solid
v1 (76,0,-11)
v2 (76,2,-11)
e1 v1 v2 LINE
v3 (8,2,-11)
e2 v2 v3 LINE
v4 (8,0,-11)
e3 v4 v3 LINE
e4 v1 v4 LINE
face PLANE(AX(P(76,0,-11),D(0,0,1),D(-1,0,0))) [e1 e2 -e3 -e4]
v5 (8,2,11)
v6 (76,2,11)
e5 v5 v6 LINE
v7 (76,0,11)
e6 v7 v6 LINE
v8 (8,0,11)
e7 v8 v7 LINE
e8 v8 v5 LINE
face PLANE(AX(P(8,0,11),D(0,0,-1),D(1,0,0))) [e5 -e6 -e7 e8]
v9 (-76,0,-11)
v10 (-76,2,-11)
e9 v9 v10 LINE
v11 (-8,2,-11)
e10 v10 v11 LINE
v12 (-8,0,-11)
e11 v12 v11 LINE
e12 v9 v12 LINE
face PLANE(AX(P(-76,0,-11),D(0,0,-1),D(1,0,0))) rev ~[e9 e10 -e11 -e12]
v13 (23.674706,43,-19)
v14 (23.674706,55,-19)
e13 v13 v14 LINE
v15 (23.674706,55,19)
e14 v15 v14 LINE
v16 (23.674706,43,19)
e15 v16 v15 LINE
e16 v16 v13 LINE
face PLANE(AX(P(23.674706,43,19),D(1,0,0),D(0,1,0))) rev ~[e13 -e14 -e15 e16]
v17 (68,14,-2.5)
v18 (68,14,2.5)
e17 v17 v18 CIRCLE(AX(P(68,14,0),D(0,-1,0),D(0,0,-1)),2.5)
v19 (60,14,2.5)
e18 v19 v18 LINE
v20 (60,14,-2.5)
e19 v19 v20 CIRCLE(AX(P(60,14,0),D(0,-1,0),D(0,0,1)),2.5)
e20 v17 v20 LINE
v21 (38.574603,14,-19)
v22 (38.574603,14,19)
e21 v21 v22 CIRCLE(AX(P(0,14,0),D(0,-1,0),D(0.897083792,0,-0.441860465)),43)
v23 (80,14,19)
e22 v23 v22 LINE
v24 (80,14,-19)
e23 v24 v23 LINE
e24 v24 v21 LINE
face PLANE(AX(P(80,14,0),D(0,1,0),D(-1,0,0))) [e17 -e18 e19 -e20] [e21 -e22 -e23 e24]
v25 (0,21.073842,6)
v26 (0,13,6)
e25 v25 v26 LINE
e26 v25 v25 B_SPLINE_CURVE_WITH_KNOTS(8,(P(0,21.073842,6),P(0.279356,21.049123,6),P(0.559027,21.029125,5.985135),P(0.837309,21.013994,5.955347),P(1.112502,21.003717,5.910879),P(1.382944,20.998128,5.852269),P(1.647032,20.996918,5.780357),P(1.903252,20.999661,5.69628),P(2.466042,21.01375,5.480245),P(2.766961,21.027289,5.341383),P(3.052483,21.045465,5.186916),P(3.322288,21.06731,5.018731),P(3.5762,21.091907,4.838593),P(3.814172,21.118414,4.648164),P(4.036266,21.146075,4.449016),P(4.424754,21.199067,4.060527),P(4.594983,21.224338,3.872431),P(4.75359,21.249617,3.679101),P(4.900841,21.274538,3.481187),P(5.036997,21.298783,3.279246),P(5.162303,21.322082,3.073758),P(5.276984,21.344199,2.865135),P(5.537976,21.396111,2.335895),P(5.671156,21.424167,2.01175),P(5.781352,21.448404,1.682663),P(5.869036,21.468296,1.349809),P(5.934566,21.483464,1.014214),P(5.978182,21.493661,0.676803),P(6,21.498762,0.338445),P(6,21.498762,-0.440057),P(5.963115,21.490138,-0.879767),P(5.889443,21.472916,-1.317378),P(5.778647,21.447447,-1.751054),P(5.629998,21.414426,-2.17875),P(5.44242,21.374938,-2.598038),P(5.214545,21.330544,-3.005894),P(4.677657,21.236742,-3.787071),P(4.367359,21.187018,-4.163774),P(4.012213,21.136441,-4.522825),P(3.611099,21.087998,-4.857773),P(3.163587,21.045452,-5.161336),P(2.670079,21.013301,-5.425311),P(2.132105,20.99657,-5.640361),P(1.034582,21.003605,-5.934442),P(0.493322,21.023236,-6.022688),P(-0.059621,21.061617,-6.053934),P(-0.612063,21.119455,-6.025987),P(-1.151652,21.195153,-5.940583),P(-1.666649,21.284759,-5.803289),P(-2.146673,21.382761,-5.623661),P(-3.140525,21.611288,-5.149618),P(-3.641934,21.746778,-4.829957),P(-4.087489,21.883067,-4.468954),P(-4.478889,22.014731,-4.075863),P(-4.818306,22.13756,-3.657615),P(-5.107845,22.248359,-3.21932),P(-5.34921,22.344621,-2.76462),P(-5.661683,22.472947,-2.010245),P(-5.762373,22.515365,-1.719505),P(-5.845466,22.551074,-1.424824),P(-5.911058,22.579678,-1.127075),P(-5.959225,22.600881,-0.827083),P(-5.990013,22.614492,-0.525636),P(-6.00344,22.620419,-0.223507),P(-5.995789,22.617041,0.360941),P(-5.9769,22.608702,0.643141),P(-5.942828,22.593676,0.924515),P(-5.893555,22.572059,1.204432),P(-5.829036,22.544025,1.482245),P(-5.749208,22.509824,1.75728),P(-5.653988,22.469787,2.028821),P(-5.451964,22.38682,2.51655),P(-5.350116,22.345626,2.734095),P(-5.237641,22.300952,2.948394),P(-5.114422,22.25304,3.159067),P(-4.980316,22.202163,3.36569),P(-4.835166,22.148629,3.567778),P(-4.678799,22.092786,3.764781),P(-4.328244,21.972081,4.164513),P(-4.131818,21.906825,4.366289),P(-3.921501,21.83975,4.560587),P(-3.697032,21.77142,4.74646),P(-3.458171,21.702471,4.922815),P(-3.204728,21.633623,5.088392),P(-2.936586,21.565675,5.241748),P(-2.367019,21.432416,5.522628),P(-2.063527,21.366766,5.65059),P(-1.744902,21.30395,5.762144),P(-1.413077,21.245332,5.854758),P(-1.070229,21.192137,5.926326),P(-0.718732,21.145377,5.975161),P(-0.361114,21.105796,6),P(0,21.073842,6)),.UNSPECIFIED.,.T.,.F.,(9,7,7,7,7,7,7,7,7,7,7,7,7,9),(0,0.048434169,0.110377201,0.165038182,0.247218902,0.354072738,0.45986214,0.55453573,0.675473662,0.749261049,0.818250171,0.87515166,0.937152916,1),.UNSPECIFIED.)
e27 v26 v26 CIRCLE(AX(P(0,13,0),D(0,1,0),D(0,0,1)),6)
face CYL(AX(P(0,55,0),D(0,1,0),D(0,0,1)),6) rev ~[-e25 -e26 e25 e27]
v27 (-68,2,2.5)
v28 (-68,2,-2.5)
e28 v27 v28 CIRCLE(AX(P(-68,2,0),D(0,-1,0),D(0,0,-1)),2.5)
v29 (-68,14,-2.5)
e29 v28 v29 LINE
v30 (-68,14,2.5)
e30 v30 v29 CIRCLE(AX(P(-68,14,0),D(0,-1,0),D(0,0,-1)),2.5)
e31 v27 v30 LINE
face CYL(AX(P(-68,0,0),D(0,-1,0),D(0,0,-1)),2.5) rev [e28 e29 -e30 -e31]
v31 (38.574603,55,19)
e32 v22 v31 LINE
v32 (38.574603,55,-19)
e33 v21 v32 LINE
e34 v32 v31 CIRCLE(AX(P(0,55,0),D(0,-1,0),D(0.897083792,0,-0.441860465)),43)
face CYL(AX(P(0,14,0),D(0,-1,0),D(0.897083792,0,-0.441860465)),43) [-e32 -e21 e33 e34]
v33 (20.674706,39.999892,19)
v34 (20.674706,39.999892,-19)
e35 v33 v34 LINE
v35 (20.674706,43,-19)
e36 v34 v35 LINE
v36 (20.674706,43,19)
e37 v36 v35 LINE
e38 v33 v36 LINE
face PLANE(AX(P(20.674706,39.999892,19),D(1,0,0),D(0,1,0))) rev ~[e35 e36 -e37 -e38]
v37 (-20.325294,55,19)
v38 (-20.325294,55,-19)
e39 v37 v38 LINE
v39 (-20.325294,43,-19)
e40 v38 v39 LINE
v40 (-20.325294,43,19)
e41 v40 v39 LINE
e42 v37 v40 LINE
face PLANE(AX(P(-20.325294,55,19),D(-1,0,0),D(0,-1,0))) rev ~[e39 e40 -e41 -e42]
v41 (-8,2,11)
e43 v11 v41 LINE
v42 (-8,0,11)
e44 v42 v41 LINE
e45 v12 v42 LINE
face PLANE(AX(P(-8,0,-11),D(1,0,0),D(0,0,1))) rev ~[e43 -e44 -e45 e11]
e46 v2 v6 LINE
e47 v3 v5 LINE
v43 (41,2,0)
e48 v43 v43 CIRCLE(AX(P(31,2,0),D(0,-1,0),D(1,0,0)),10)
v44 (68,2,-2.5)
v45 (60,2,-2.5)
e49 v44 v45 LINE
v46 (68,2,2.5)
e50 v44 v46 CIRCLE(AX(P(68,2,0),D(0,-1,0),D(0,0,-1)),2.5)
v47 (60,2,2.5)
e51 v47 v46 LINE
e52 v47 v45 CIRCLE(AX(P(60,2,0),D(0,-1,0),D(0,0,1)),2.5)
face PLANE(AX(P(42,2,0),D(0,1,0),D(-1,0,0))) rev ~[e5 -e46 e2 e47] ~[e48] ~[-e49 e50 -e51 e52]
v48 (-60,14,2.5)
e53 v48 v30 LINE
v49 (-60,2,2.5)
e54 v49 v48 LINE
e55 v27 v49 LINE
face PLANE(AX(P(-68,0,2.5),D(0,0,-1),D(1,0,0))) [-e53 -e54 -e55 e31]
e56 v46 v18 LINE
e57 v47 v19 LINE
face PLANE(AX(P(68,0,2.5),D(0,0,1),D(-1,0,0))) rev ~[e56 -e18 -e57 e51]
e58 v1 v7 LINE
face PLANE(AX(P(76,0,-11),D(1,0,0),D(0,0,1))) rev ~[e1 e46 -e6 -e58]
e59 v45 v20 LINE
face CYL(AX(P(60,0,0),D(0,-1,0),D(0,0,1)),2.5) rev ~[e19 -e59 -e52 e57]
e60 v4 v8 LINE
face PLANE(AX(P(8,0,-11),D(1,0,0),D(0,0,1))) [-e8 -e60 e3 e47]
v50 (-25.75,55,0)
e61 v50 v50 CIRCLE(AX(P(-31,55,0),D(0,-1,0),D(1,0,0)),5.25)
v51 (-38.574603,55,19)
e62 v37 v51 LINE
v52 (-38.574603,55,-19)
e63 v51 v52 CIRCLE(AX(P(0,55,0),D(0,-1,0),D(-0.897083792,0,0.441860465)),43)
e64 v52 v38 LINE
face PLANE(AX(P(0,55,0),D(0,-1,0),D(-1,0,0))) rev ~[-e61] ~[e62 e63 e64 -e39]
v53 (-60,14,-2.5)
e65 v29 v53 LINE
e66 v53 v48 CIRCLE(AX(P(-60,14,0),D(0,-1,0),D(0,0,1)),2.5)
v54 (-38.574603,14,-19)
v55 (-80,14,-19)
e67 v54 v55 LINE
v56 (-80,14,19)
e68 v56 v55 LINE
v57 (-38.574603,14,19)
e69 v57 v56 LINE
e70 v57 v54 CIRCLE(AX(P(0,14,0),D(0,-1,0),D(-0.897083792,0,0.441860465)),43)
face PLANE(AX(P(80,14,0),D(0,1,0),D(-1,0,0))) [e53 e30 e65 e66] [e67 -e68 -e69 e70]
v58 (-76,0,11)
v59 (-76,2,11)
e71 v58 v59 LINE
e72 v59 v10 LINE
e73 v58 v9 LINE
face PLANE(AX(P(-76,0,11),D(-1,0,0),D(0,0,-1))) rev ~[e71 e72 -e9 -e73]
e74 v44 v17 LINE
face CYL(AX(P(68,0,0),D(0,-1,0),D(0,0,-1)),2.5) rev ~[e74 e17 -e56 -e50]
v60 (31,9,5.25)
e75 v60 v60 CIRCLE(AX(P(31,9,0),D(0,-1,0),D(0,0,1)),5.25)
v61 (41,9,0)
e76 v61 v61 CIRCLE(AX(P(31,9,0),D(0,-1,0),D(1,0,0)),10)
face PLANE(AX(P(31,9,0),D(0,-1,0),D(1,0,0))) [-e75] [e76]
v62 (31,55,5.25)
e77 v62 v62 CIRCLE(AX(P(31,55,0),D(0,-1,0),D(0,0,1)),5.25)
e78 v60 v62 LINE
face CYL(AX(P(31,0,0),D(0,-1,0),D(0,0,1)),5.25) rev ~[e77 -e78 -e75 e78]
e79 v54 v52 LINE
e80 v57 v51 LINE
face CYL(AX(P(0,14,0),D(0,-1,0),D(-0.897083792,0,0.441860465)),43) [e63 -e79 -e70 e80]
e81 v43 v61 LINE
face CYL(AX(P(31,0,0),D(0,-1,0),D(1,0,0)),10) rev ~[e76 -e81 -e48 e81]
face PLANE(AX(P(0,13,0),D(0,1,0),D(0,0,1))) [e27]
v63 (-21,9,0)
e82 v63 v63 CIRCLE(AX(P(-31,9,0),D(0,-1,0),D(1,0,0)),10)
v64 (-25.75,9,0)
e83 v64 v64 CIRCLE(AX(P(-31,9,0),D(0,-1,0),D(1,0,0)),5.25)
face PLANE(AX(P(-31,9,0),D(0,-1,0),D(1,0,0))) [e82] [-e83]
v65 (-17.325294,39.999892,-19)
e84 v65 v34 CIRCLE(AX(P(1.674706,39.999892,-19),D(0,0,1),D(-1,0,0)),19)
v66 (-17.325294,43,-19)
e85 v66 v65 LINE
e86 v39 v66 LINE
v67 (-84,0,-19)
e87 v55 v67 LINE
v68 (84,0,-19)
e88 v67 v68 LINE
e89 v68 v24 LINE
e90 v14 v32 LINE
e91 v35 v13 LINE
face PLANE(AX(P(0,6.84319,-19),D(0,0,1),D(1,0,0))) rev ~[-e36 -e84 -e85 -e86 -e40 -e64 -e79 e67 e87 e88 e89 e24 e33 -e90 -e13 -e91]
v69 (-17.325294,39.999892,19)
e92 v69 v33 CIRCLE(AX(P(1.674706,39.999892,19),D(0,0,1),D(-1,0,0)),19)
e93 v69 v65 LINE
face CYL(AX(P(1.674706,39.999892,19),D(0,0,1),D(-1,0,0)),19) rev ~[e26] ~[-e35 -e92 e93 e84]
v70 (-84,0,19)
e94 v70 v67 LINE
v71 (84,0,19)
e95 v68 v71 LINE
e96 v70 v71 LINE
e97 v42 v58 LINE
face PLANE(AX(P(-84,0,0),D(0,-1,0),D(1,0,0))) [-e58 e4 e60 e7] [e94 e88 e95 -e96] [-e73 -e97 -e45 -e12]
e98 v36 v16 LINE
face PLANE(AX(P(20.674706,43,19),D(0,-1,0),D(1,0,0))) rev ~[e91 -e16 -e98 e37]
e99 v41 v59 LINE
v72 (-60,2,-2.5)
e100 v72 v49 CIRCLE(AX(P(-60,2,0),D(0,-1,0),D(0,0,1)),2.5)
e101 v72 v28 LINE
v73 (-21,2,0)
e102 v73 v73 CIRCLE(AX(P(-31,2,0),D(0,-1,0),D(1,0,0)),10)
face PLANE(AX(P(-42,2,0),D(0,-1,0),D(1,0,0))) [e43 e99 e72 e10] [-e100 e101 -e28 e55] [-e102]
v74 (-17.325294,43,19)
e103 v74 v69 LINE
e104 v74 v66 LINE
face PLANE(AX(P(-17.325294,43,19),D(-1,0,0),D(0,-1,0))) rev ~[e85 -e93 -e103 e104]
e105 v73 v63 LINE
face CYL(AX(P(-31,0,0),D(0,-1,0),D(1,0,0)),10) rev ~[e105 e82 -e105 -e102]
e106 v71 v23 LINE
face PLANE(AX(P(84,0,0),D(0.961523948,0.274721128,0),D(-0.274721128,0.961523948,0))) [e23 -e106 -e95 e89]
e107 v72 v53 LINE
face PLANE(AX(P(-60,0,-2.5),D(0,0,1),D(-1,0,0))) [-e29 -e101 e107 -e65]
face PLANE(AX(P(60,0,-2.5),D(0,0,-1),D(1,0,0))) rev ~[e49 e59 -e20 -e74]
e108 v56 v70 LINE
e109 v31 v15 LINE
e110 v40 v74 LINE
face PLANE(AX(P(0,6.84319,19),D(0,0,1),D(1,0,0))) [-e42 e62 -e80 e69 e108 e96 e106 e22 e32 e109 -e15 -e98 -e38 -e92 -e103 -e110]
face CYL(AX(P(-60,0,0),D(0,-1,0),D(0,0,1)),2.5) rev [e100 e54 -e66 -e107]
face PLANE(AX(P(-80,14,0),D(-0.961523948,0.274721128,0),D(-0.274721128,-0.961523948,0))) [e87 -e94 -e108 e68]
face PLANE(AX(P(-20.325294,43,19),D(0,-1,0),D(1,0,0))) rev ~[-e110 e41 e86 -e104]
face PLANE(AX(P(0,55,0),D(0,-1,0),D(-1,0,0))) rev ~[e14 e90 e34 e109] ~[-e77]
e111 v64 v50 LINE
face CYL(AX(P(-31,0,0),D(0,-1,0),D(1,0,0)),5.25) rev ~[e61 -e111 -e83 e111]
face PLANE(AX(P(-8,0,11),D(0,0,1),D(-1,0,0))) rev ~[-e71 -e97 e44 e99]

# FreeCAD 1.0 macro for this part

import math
import FreeCAD as App
import Part
import Sketcher
from FreeCAD import Vector
Q = App.Units.Quantity

doc = App.newDocument("Part")
body = doc.addObject("PartDesign::Body", "Body")

sketch1 = doc.addObject("Sketcher::SketchObject", "Sketch")
body.addObject(sketch1)
sketch1.AttachmentSupport = (doc.XY_Plane, [""])
sketch1.MapMode = "FlatFace"
sketch1.addGeometry(Part.LineSegment(Vector(-84, 0, 0), Vector(84, 0, 0)), False)
sketch1.addGeometry(Part.LineSegment(Vector(84, 0, 0), Vector(80, 14, 0)), False)
sketch1.addGeometry(Part.LineSegment(Vector(80, 14, 0), Vector(-80, 14, 0)), False)
sketch1.addGeometry(Part.LineSegment(Vector(-80, 14, 0), Vector(-84, 0, 0)), False)
sketch1.addConstraint(Sketcher.Constraint("Coincident", 0, 2, 1, 1))
sketch1.addConstraint(Sketcher.Constraint("Coincident", 1, 2, 2, 1))
sketch1.addConstraint(Sketcher.Constraint("Coincident", 2, 2, 3, 1))
sketch1.addConstraint(Sketcher.Constraint("Coincident", 3, 2, 0, 1))
sketch1.addConstraint(Sketcher.Constraint("Horizontal", 0))
sketch1.addConstraint(Sketcher.Constraint("Horizontal", 2))
sketch1.addConstraint(Sketcher.Constraint("Symmetric", 0, 2, 3, 2, -1, 1))
sketch1.addConstraint(Sketcher.Constraint("Equal", 1, 3))
sketch1.addConstraint(Sketcher.Constraint("DistanceX", 0, 1, 0, 2, Q("168 mm")))
sketch1.addConstraint(Sketcher.Constraint("DistanceX", 2, 2, 2, 1, Q("160 mm")))
sketch1.addConstraint(Sketcher.Constraint("DistanceY", -1, 1, 1, 2, Q("14 mm")))
pad1 = doc.addObject("PartDesign::Pad", "Pad")
body.addObject(pad1)
pad1.Profile = sketch1
pad1.Length = 38
pad1.Midplane = True

sketch2 = doc.addObject("Sketcher::SketchObject", "Sketch001")
body.addObject(sketch2)
sketch2.AttachmentSupport = (doc.XZ_Plane, [""])
sketch2.MapMode = "FlatFace"
sketch2.addGeometry(Part.LineSegment(Vector(-76, 11, 0), Vector(-76, -11, 0)), False)
sketch2.addGeometry(Part.LineSegment(Vector(-76, -11, 0), Vector(-8, -11, 0)), False)
sketch2.addGeometry(Part.LineSegment(Vector(-8, -11, 0), Vector(-8, 11, 0)), False)
sketch2.addGeometry(Part.LineSegment(Vector(-8, 11, 0), Vector(-76, 11, 0)), False)
sketch2.addGeometry(Part.LineSegment(Vector(76, -11, 0), Vector(76, 11, 0)), False)
sketch2.addGeometry(Part.LineSegment(Vector(76, 11, 0), Vector(8, 11, 0)), False)
sketch2.addGeometry(Part.LineSegment(Vector(8, 11, 0), Vector(8, -11, 0)), False)
sketch2.addGeometry(Part.LineSegment(Vector(8, -11, 0), Vector(76, -11, 0)), False)
sketch2.addConstraint(Sketcher.Constraint("Coincident", 0, 2, 1, 1))
sketch2.addConstraint(Sketcher.Constraint("Coincident", 1, 2, 2, 1))
sketch2.addConstraint(Sketcher.Constraint("Coincident", 2, 2, 3, 1))
sketch2.addConstraint(Sketcher.Constraint("Coincident", 3, 2, 0, 1))
sketch2.addConstraint(Sketcher.Constraint("Coincident", 4, 2, 5, 1))
sketch2.addConstraint(Sketcher.Constraint("Coincident", 5, 2, 6, 1))
sketch2.addConstraint(Sketcher.Constraint("Coincident", 6, 2, 7, 1))
sketch2.addConstraint(Sketcher.Constraint("Coincident", 7, 2, 4, 1))
sketch2.addConstraint(Sketcher.Constraint("Vertical", 0))
sketch2.addConstraint(Sketcher.Constraint("Horizontal", 1))
sketch2.addConstraint(Sketcher.Constraint("Vertical", 2))
sketch2.addConstraint(Sketcher.Constraint("Horizontal", 3))
sketch2.addConstraint(Sketcher.Constraint("Vertical", 4))
sketch2.addConstraint(Sketcher.Constraint("Horizontal", 5))
sketch2.addConstraint(Sketcher.Constraint("Vertical", 6))
sketch2.addConstraint(Sketcher.Constraint("Horizontal", 7))
sketch2.addConstraint(Sketcher.Constraint("Symmetric", 0, 2, 4, 2, -1, 1))
sketch2.addConstraint(Sketcher.Constraint("Symmetric", 2, 2, 6, 2, -1, 1))
sketch2.addConstraint(Sketcher.Constraint("Horizontal", 3, 2, 4, 2))
sketch2.addConstraint(Sketcher.Constraint("DistanceX", 1, 1, 1, 2, Q("68 mm")))
sketch2.addConstraint(Sketcher.Constraint("DistanceY", 0, 2, 0, 1, Q("22 mm")))
sketch2.addConstraint(Sketcher.Constraint("DistanceX", 0, 2, -1, 1, Q("76 mm")))
pocket1 = doc.addObject("PartDesign::Pocket", "Pocket")
body.addObject(pocket1)
pocket1.Profile = sketch2
pocket1.Length = 2

sketch3 = doc.addObject("Sketcher::SketchObject", "Sketch002")
body.addObject(sketch3)
sketch3.AttachmentSupport = (doc.XZ_Plane, [""])
sketch3.MapMode = "FlatFace"
sketch3.AttachmentOffset = App.Placement(Vector(0, 0, -14), App.Rotation())
sketch3.addGeometry(Part.LineSegment(Vector(39, -19, 0), Vector(-39, -19, 0)), False)
sketch3.addGeometry(Part.ArcOfCircle(Part.Circle(Vector(0, 0, 0), Vector(0, 0, 1), 43), math.radians(154), math.radians(206)), False)
sketch3.addGeometry(Part.LineSegment(Vector(-39, 19, 0), Vector(39, 19, 0)), False)
sketch3.addGeometry(Part.ArcOfCircle(Part.Circle(Vector(0, 0, 0), Vector(0, 0, 1), 43), math.radians(-26), math.radians(26)), False)
sketch3.addConstraint(Sketcher.Constraint("Coincident", 0, 2, 1, 2))
sketch3.addConstraint(Sketcher.Constraint("Coincident", 1, 1, 2, 1))
sketch3.addConstraint(Sketcher.Constraint("Coincident", 2, 2, 3, 2))
sketch3.addConstraint(Sketcher.Constraint("Coincident", 3, 1, 0, 1))
sketch3.addConstraint(Sketcher.Constraint("Horizontal", 0))
sketch3.addConstraint(Sketcher.Constraint("Horizontal", 2))
sketch3.addConstraint(Sketcher.Constraint("Coincident", 1, 3, -1, 1))
sketch3.addConstraint(Sketcher.Constraint("Coincident", 3, 3, -1, 1))
sketch3.addConstraint(Sketcher.Constraint("Equal", 1, 3))
sketch3.addConstraint(Sketcher.Constraint("Vertical", 0, 2, 1, 1))
sketch3.addConstraint(Sketcher.Constraint("Radius", 1, Q("43 mm")))
sketch3.addConstraint(Sketcher.Constraint("DistanceY", 0, 2, -1, 1, Q("19 mm")))
pad2 = doc.addObject("PartDesign::Pad", "Pad001")
body.addObject(pad2)
pad2.Profile = sketch3
pad2.Length = 41
pad2.Reversed = True

sketch4 = doc.addObject("Sketcher::SketchObject", "Sketch003")
body.addObject(sketch4)
sketch4.AttachmentSupport = (doc.XY_Plane, [""])
sketch4.MapMode = "FlatFace"
sketch4.AttachmentOffset = App.Placement(Vector(0, 0, 19), App.Rotation())
sketch4.addGeometry(Part.LineSegment(Vector(20.7, 40, 0), Vector(20.7, 43, 0)), False)
sketch4.addGeometry(Part.LineSegment(Vector(20.7, 43, 0), Vector(23.7, 43, 0)), False)
sketch4.addGeometry(Part.LineSegment(Vector(23.7, 43, 0), Vector(23.7, 55, 0)), False)
sketch4.addGeometry(Part.LineSegment(Vector(23.7, 55, 0), Vector(-20.3, 55, 0)), False)
sketch4.addGeometry(Part.LineSegment(Vector(-20.3, 55, 0), Vector(-20.3, 43, 0)), False)
sketch4.addGeometry(Part.LineSegment(Vector(-20.3, 43, 0), Vector(-17.3, 43, 0)), False)
sketch4.addGeometry(Part.LineSegment(Vector(-17.3, 43, 0), Vector(-17.3, 40, 0)), False)
sketch4.addGeometry(Part.ArcOfCircle(Part.Circle(Vector(1.7, 40, 0), Vector(0, 0, 1), 19), math.radians(180), math.radians(360)), False)
sketch4.addConstraint(Sketcher.Constraint("Coincident", 0, 2, 1, 1))
sketch4.addConstraint(Sketcher.Constraint("Coincident", 1, 2, 2, 1))
sketch4.addConstraint(Sketcher.Constraint("Coincident", 2, 2, 3, 1))
sketch4.addConstraint(Sketcher.Constraint("Coincident", 3, 2, 4, 1))
sketch4.addConstraint(Sketcher.Constraint("Coincident", 4, 2, 5, 1))
sketch4.addConstraint(Sketcher.Constraint("Coincident", 5, 2, 6, 1))
sketch4.addConstraint(Sketcher.Constraint("Tangent", 6, 2, 7, 1))
sketch4.addConstraint(Sketcher.Constraint("Tangent", 7, 2, 0, 1))
sketch4.addConstraint(Sketcher.Constraint("Vertical", 0))
sketch4.addConstraint(Sketcher.Constraint("Horizontal", 1))
sketch4.addConstraint(Sketcher.Constraint("Vertical", 2))
sketch4.addConstraint(Sketcher.Constraint("Horizontal", 3))
sketch4.addConstraint(Sketcher.Constraint("Vertical", 4))
sketch4.addConstraint(Sketcher.Constraint("Horizontal", 5))
sketch4.addConstraint(Sketcher.Constraint("Vertical", 6))
sketch4.addConstraint(Sketcher.Constraint("Horizontal", 1, 2, 4, 2))
sketch4.addConstraint(Sketcher.Constraint("Equal", 1, 5))
sketch4.addConstraint(Sketcher.Constraint("Radius", 7, Q("19 mm")))
sketch4.addConstraint(Sketcher.Constraint("DistanceX", 1, 1, 1, 2, Q("3 mm")))
sketch4.addConstraint(Sketcher.Constraint("DistanceY", 2, 1, 2, 2, Q("12 mm")))
sketch4.addConstraint(Sketcher.Constraint("DistanceY", -1, 1, 0, 2, Q("43 mm")))
sketch4.addConstraint(Sketcher.Constraint("DistanceY", 0, 1, 0, 2, Q("3.000108 mm")))
sketch4.addConstraint(Sketcher.Constraint("DistanceX", -1, 1, 7, 3, Q("1.674706 mm")))
pocket2 = doc.addObject("PartDesign::Pocket", "Pocket001")
body.addObject(pocket2)
pocket2.Profile = sketch4
pocket2.Length = 62

sketch5 = doc.addObject("Sketcher::SketchObject", "Sketch004")
body.addObject(sketch5)
sketch5.AttachmentSupport = (doc.XZ_Plane, [""])
sketch5.MapMode = "FlatFace"
sketch5.addGeometry(Part.Circle(Vector(-31, 0, 0), Vector(0, 0, 1), 5.2), False)
sketch5.addGeometry(Part.Circle(Vector(31, 0, 0), Vector(0, 0, 1), 5.2), False)
sketch5.addGeometry(Part.LineSegment(Vector(68, 2.5, 0), Vector(60, 2.5, 0)), False)
sketch5.addGeometry(Part.ArcOfCircle(Part.Circle(Vector(60, 0, 0), Vector(0, 0, 1), 2.5), math.radians(90), math.radians(270)), False)
sketch5.addGeometry(Part.LineSegment(Vector(60, -2.5, 0), Vector(68, -2.5, 0)), False)
sketch5.addGeometry(Part.ArcOfCircle(Part.Circle(Vector(68, 0, 0), Vector(0, 0, 1), 2.5), math.radians(-90), math.radians(90)), False)
sketch5.addGeometry(Part.LineSegment(Vector(-60, 2.5, 0), Vector(-68, 2.5, 0)), False)
sketch5.addGeometry(Part.ArcOfCircle(Part.Circle(Vector(-68, 0, 0), Vector(0, 0, 1), 2.5), math.radians(90), math.radians(270)), False)
sketch5.addGeometry(Part.LineSegment(Vector(-68, -2.5, 0), Vector(-60, -2.5, 0)), False)
sketch5.addGeometry(Part.ArcOfCircle(Part.Circle(Vector(-60, 0, 0), Vector(0, 0, 1), 2.5), math.radians(-90), math.radians(90)), False)
sketch5.addConstraint(Sketcher.Constraint("Tangent", 2, 2, 3, 1))
sketch5.addConstraint(Sketcher.Constraint("Tangent", 3, 2, 4, 1))
sketch5.addConstraint(Sketcher.Constraint("Tangent", 4, 2, 5, 1))
sketch5.addConstraint(Sketcher.Constraint("Tangent", 5, 2, 2, 1))
sketch5.addConstraint(Sketcher.Constraint("Tangent", 6, 2, 7, 1))
sketch5.addConstraint(Sketcher.Constraint("Tangent", 7, 2, 8, 1))
sketch5.addConstraint(Sketcher.Constraint("Tangent", 8, 2, 9, 1))
sketch5.addConstraint(Sketcher.Constraint("Tangent", 9, 2, 6, 1))
sketch5.addConstraint(Sketcher.Constraint("Horizontal", 2))
sketch5.addConstraint(Sketcher.Constraint("Horizontal", 4))
sketch5.addConstraint(Sketcher.Constraint("Horizontal", 6))
sketch5.addConstraint(Sketcher.Constraint("Horizontal", 8))
sketch5.addConstraint(Sketcher.Constraint("Equal", 0, 1))
sketch5.addConstraint(Sketcher.Constraint("Equal", 5, 7))
sketch5.addConstraint(Sketcher.Constraint("Symmetric", 0, 3, 1, 3, -1, 1))
sketch5.addConstraint(Sketcher.Constraint("Symmetric", 5, 3, 7, 3, -1, 1))
sketch5.addConstraint(Sketcher.Constraint("Symmetric", 3, 3, 9, 3, -2))
sketch5.addConstraint(Sketcher.Constraint("PointOnObject", 0, 3, -1))
sketch5.addConstraint(Sketcher.Constraint("Diameter", 0, Q("10.5 mm")))
sketch5.addConstraint(Sketcher.Constraint("Radius", 3, Q("2.5 mm")))
sketch5.addConstraint(Sketcher.Constraint("DistanceX", 2, 2, 2, 1, Q("8 mm")))
sketch5.addConstraint(Sketcher.Constraint("DistanceX", 0, 3, -1, 1, Q("31 mm")))
sketch5.addConstraint(Sketcher.Constraint("DistanceX", -1, 1, 3, 3, Q("60 mm")))
pocket3 = doc.addObject("PartDesign::Pocket", "Pocket002")
body.addObject(pocket3)
pocket3.Profile = sketch5
pocket3.Length = 72

sketch6 = doc.addObject("Sketcher::SketchObject", "Sketch005")
body.addObject(sketch6)
sketch6.AttachmentSupport = (doc.XZ_Plane, [""])
sketch6.MapMode = "FlatFace"
sketch6.addGeometry(Part.Circle(Vector(-31, 0, 0), Vector(0, 0, 1), 10), False)
sketch6.addGeometry(Part.Circle(Vector(31, 0, 0), Vector(0, 0, 1), 10), False)
sketch6.addConstraint(Sketcher.Constraint("Equal", 0, 1))
sketch6.addConstraint(Sketcher.Constraint("Symmetric", 0, 3, 1, 3, -1, 1))
sketch6.addConstraint(Sketcher.Constraint("PointOnObject", 0, 3, -1))
sketch6.addConstraint(Sketcher.Constraint("Diameter", 0, Q("20 mm")))
sketch6.addConstraint(Sketcher.Constraint("DistanceX", 0, 3, -1, 1, Q("31 mm")))
pocket4 = doc.addObject("PartDesign::Pocket", "Pocket003")
body.addObject(pocket4)
pocket4.Profile = sketch6
pocket4.Length = 9

sketch7 = doc.addObject("Sketcher::SketchObject", "Sketch006")
body.addObject(sketch7)
sketch7.AttachmentSupport = (doc.XZ_Plane, [""])
sketch7.MapMode = "FlatFace"
sketch7.AttachmentOffset = App.Placement(Vector(0, 0, -55), App.Rotation())
sketch7.addGeometry(Part.Circle(Vector(0, 0, 0), Vector(0, 0, 1), 6), False)
sketch7.addConstraint(Sketcher.Constraint("Coincident", 0, 3, -1, 1))
sketch7.addConstraint(Sketcher.Constraint("Diameter", 0, Q("12 mm")))
pocket5 = doc.addObject("PartDesign::Pocket", "Pocket004")
body.addObject(pocket5)
pocket5.Profile = sketch7
pocket5.Length = 42
pocket5.Reversed = True

doc.recompute()
